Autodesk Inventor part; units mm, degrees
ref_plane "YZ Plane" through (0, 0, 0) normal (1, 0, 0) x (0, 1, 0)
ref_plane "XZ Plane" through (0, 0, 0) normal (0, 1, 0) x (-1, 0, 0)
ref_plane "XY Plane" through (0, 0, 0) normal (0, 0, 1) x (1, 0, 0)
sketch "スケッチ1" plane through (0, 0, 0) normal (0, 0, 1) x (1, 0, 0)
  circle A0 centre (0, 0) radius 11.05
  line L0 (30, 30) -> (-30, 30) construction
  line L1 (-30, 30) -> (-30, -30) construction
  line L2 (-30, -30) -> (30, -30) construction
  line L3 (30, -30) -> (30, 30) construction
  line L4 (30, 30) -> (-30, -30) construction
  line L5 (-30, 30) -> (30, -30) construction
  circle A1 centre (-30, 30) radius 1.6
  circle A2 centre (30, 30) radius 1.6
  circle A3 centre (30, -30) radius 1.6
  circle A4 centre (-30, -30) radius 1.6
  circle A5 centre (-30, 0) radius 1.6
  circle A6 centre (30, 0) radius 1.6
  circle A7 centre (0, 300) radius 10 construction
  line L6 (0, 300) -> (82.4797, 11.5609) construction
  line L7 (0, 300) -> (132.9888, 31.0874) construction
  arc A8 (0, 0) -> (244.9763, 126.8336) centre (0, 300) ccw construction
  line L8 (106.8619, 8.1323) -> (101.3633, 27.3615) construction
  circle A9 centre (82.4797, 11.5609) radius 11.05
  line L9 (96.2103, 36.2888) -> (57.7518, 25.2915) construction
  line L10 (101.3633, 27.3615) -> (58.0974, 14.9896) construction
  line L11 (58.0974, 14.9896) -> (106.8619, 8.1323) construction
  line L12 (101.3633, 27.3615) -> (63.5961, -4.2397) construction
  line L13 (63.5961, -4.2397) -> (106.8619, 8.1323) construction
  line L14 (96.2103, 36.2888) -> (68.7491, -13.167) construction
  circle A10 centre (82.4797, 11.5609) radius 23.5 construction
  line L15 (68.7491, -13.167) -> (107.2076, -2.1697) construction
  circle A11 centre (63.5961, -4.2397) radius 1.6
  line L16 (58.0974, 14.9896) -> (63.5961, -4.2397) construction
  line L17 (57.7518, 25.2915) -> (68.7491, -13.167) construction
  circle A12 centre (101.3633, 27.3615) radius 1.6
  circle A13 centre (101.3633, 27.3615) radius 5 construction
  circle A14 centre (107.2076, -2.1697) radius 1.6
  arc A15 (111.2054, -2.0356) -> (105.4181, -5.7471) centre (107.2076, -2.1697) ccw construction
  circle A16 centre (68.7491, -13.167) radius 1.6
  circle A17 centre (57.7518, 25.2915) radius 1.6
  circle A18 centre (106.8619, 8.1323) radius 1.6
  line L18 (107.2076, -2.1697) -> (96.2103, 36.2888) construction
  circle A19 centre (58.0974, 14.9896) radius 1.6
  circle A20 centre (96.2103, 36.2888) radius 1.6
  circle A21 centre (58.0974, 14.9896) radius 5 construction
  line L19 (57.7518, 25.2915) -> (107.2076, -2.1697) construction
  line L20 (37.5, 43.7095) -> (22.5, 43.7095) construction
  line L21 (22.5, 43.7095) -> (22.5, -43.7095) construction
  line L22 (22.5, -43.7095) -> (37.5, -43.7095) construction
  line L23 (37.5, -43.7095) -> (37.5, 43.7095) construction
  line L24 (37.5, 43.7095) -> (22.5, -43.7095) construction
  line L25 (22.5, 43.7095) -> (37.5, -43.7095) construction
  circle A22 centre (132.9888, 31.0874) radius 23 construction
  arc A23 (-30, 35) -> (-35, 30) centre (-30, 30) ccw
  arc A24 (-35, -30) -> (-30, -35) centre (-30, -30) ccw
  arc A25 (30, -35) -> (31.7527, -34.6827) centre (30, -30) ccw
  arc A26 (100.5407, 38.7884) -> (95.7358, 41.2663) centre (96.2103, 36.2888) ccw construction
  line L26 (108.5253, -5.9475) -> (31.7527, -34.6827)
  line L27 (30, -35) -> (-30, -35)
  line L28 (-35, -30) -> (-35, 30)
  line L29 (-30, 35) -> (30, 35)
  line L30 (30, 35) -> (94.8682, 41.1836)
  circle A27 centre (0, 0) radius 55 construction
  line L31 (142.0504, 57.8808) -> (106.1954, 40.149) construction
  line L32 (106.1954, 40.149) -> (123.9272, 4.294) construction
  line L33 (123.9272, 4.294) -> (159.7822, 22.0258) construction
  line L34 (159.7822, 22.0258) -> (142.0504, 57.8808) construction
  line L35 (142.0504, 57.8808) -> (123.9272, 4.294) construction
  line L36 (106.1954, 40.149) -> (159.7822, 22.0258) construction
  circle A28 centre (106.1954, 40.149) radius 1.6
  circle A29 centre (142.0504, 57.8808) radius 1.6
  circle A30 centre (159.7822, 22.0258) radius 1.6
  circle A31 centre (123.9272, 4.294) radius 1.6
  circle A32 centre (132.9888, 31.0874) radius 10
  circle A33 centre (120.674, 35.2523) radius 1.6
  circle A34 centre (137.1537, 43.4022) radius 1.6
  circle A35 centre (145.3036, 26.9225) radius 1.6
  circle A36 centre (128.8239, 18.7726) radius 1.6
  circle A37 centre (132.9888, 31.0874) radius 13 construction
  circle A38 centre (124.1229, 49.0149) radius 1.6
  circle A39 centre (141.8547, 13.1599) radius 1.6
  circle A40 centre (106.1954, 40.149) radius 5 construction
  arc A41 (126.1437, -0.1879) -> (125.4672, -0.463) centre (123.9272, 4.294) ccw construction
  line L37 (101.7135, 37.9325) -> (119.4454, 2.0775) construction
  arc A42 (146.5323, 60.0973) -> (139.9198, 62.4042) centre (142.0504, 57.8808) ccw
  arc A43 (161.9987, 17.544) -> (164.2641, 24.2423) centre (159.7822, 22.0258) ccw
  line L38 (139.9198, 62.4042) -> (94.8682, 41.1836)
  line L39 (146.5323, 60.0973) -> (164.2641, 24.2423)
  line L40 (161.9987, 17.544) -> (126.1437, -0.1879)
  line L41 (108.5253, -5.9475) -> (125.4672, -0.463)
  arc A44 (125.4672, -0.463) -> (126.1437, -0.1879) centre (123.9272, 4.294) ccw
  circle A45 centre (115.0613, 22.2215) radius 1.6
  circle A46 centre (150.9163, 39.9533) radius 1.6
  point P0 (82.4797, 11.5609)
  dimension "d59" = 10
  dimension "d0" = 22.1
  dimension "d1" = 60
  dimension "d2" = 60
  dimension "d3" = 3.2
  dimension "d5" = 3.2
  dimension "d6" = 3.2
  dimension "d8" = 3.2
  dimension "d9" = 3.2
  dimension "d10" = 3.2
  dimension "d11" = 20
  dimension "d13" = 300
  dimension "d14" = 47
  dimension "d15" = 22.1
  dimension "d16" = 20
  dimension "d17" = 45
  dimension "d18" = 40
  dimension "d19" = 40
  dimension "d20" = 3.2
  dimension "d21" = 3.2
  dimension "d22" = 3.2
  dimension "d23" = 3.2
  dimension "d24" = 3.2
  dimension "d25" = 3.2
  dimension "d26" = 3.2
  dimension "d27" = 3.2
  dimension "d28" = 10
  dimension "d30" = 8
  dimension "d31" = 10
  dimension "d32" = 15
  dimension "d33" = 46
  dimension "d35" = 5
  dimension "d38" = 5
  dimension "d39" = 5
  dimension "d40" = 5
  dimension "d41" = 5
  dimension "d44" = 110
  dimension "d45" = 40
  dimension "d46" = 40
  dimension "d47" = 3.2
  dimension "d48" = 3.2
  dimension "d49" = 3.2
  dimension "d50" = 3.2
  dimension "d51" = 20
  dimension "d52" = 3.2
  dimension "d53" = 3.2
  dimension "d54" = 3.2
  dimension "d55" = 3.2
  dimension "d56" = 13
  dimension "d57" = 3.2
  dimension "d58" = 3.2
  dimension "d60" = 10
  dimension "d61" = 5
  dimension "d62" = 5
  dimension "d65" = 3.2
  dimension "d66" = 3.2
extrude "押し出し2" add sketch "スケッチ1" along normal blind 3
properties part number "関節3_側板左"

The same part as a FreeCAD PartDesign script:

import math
import FreeCAD as App
import Part
import Sketcher
from FreeCAD import Vector
Q = App.Units.Quantity

doc = App.newDocument("Part")
body = doc.addObject("PartDesign::Body", "Body")

sketch1 = body.newObject("Sketcher::SketchObject", "Sketch")
sketch1.AttachmentSupport = (doc.getObject("XY_Plane"), [""])
sketch1.MapMode = "FlatFace"
sketch1.addGeometry([
    Part.LineSegment(Vector(30, 35, 0), Vector(-30, 35, 0)),
    Part.ArcOfCircle(Part.Circle(Vector(-30, 30, 0), Vector(0, 0, 1), 5), math.radians(90), math.radians(180)),
    Part.LineSegment(Vector(-35, 30, 0), Vector(-35, -30, 0)),
    Part.ArcOfCircle(Part.Circle(Vector(-30, -30, 0), Vector(0, 0, 1), 5), math.radians(180), math.radians(270)),
    Part.LineSegment(Vector(-30, -35, 0), Vector(30, -35, 0)),
    Part.ArcOfCircle(Part.Circle(Vector(30.000102, -30.001136, 0), Vector(0, 0, 1), 4.998864), math.radians(-90.001169), math.radians(-69.476027)),
    Part.LineSegment(Vector(31.7527, -34.6827, 0), Vector(108.5253, -5.9475, 0)),
    Part.LineSegment(Vector(108.5253, -5.9475, 0), Vector(125.4672, -0.463, 0)),
    Part.ArcOfCircle(Part.Circle(Vector(123.929438, 4.287862, 0), Vector(0, 0, 1), 4.993536), math.radians(-72.064237), math.radians(-63.677343)),
    Part.LineSegment(Vector(126.1437, -0.1879, 0), Vector(161.9987, 17.544, 0)),
    Part.ArcOfCircle(Part.Circle(Vector(159.7822, 22.0258, 0), Vector(0, 0, 1), 4.99994), math.radians(-63.685037), math.radians(26.314455)),
    Part.LineSegment(Vector(164.2641, 24.2423, 0), Vector(146.5323, 60.0973, 0)),
    Part.ArcOfCircle(Part.Circle(Vector(142.0504, 57.8808, 0), Vector(0, 0, 1), 5.00003), math.radians(26.314455), math.radians(115.22125)),
    Part.LineSegment(Vector(139.9198, 62.4042, 0), Vector(94.8682, 41.1836, 0)),
    Part.LineSegment(Vector(94.8682, 41.1836, 0), Vector(30, 35, 0)),
    Part.Circle(Vector(-30, -30, 0), Vector(0, 0, 1), 1.6),
    Part.Circle(Vector(30, -30, 0), Vector(0, 0, 1), 1.6),
    Part.Circle(Vector(-30, 0, 0), Vector(0, 0, 1), 1.6),
    Part.Circle(Vector(0, 0, 0), Vector(0, 0, 1), 11.05),
    Part.Circle(Vector(30, 0, 0), Vector(0, 0, 1), 1.6),
    Part.Circle(Vector(63.5961, -4.2397, 0), Vector(0, 0, 1), 1.6),
    Part.Circle(Vector(68.7491, -13.167, 0), Vector(0, 0, 1), 1.6),
    Part.Circle(Vector(107.2076, -2.1697, 0), Vector(0, 0, 1), 1.6),
    Part.Circle(Vector(82.4797, 11.5609, 0), Vector(0, 0, 1), 11.05),
    Part.Circle(Vector(106.8619, 8.1323, 0), Vector(0, 0, 1), 1.6),
    Part.Circle(Vector(123.9272, 4.294, 0), Vector(0, 0, 1), 1.6),
    Part.Circle(Vector(141.8547, 13.1599, 0), Vector(0, 0, 1), 1.6),
    Part.Circle(Vector(-30, 30, 0), Vector(0, 0, 1), 1.6),
    Part.Circle(Vector(58.0974, 14.9896, 0), Vector(0, 0, 1), 1.6),
    Part.Circle(Vector(57.7518, 25.2915, 0), Vector(0, 0, 1), 1.6),
    Part.Circle(Vector(30, 30, 0), Vector(0, 0, 1), 1.6),
    Part.Circle(Vector(101.3633, 27.3615, 0), Vector(0, 0, 1), 1.6),
    Part.Circle(Vector(96.2103, 36.2888, 0), Vector(0, 0, 1), 1.6),
    Part.Circle(Vector(128.8239, 18.7726, 0), Vector(0, 0, 1), 1.6),
    Part.Circle(Vector(115.0613, 22.2215, 0), Vector(0, 0, 1), 1.6),
    Part.Circle(Vector(159.7822, 22.0258, 0), Vector(0, 0, 1), 1.6),
    Part.Circle(Vector(132.9888, 31.0874, 0), Vector(0, 0, 1), 10),
    Part.Circle(Vector(120.674, 35.2523, 0), Vector(0, 0, 1), 1.6),
    Part.Circle(Vector(145.3036, 26.9225, 0), Vector(0, 0, 1), 1.6),
    Part.Circle(Vector(106.1954, 40.149, 0), Vector(0, 0, 1), 1.6),
    Part.Circle(Vector(137.1537, 43.4022, 0), Vector(0, 0, 1), 1.6),
    Part.Circle(Vector(124.1229, 49.0149, 0), Vector(0, 0, 1), 1.6),
    Part.Circle(Vector(150.9163, 39.9533, 0), Vector(0, 0, 1), 1.6),
    Part.Circle(Vector(142.0504, 57.8808, 0), Vector(0, 0, 1), 1.6),
], False)
sketch1.addConstraint([
    Sketcher.Constraint("Coincident", 0, 2, 1, 1),
    Sketcher.Constraint("Coincident", 1, 2, 2, 1),
    Sketcher.Constraint("Coincident", 2, 2, 3, 1),
    Sketcher.Constraint("Coincident", 3, 2, 4, 1),
    Sketcher.Constraint("Coincident", 4, 2, 5, 1),
    Sketcher.Constraint("Coincident", 5, 2, 6, 1),
    Sketcher.Constraint("Coincident", 6, 2, 7, 1),
    Sketcher.Constraint("Coincident", 7, 2, 8, 1),
    Sketcher.Constraint("Coincident", 8, 2, 9, 1),
    Sketcher.Constraint("Coincident", 9, 2, 10, 1),
    Sketcher.Constraint("Coincident", 10, 2, 11, 1),
    Sketcher.Constraint("Coincident", 11, 2, 12, 1),
    Sketcher.Constraint("Coincident", 12, 2, 13, 1),
    Sketcher.Constraint("Coincident", 13, 2, 14, 1),
    Sketcher.Constraint("Coincident", 14, 2, 0, 1),
    Sketcher.Constraint("Horizontal", 0),
    Sketcher.Constraint("Vertical", 2),
    Sketcher.Constraint("Horizontal", 4),
    Sketcher.Constraint("Coincident", 18, 3, -1, 1),
    Sketcher.Constraint("Coincident", 15, 3, 3, 3),
    Sketcher.Constraint("Coincident", 27, 3, 1, 3),
    Sketcher.Constraint("Coincident", 35, 3, 10, 3),
    Sketcher.Constraint("Coincident", 43, 3, 12, 3),
    Sketcher.Constraint("PointOnObject", 17, 3, -1),
    Sketcher.Constraint("PointOnObject", 19, 3, -1),
    Sketcher.Constraint("Diameter", 36, Q("20 mm")),
    Sketcher.Constraint("Radius", 1, Q("5 mm")),
    Sketcher.Constraint("Radius", 3, Q("5 mm")),
    Sketcher.Constraint("Radius", 10, Q("5 mm")),
    Sketcher.Constraint("Radius", 12, Q("5 mm")),
    Sketcher.Constraint("Diameter", 15, Q("3.2 mm")),
    Sketcher.Constraint("Diameter", 16, Q("3.2 mm")),
    Sketcher.Constraint("Diameter", 17, Q("3.2 mm")),
    Sketcher.Constraint("Diameter", 18, Q("22.1 mm")),
    Sketcher.Constraint("Diameter", 19, Q("3.2 mm")),
    Sketcher.Constraint("Diameter", 20, Q("3.2 mm")),
    Sketcher.Constraint("Diameter", 21, Q("3.2 mm")),
    Sketcher.Constraint("Diameter", 22, Q("3.2 mm")),
    Sketcher.Constraint("Diameter", 23, Q("22.1 mm")),
    Sketcher.Constraint("Diameter", 24, Q("3.2 mm")),
    Sketcher.Constraint("Diameter", 25, Q("3.2 mm")),
    Sketcher.Constraint("Diameter", 26, Q("3.2 mm")),
    Sketcher.Constraint("Diameter", 27, Q("3.2 mm")),
    Sketcher.Constraint("Diameter", 28, Q("3.2 mm")),
    Sketcher.Constraint("Diameter", 29, Q("3.2 mm")),
    Sketcher.Constraint("Diameter", 30, Q("3.2 mm")),
    Sketcher.Constraint("Diameter", 31, Q("3.2 mm")),
    Sketcher.Constraint("Diameter", 32, Q("3.2 mm")),
    Sketcher.Constraint("Diameter", 33, Q("3.2 mm")),
    Sketcher.Constraint("Diameter", 34, Q("3.2 mm")),
    Sketcher.Constraint("Diameter", 35, Q("3.2 mm")),
    Sketcher.Constraint("Diameter", 37, Q("3.2 mm")),
    Sketcher.Constraint("Diameter", 38, Q("3.2 mm")),
    Sketcher.Constraint("Diameter", 39, Q("3.2 mm")),
    Sketcher.Constraint("Diameter", 40, Q("3.2 mm")),
    Sketcher.Constraint("Diameter", 41, Q("3.2 mm")),
    Sketcher.Constraint("Diameter", 42, Q("3.2 mm")),
    Sketcher.Constraint("Diameter", 43, Q("3.2 mm")),
    Sketcher.Constraint("DistanceX", 0, 2, 0, 1, Q("60 mm")),
    Sketcher.Constraint("DistanceX", 4, 1, 4, 2, Q("60 mm")),
    Sketcher.Constraint("DistanceY", 2, 2, 2, 1, Q("60 mm")),
    Sketcher.Constraint("Distance", 9, Q("40 mm")),
    Sketcher.Constraint("Distance", 11, Q("40 mm")),
    Sketcher.Constraint("DistanceY", 3, 3, 1, 3, Q("60 mm")),
    Sketcher.Constraint("DistanceX", 3, 3, 5, 3, Q("60 mm")),
    Sketcher.Constraint("DistanceX", 3, 3, 16, 3, Q("60 mm")),
    Sketcher.Constraint("DistanceY", 16, 3, 1, 3, Q("60 mm")),
    Sketcher.Constraint("DistanceX", 17, 3, 16, 3, Q("60 mm")),
    Sketcher.Constraint("DistanceX", 17, 3, 19, 3, Q("60 mm")),
    Sketcher.Constraint("DistanceX", 0, 2, 30, 3, Q("60 mm")),
    Sketcher.Constraint("DistanceY", 30, 3, 0, 2, Q("5 mm")),
    Sketcher.Constraint("DistanceX", 1, 2, 0, 2, Q("5 mm")),
    Sketcher.Constraint("DistanceY", 1, 2, 0, 2, Q("5 mm")),
    Sketcher.Constraint("DistanceX", 2, 2, 3, 2, Q("5 mm")),
    Sketcher.Constraint("DistanceX", 1, 3, -1, 1, Q("30 mm")),
    Sketcher.Constraint("DistanceY", -1, 1, 1, 3, Q("30 mm")),
    Sketcher.Constraint("Radius", 5, Q("4.9989 mm")),
    Sketcher.Constraint("Radius", 8, Q("4.9935 mm")),
    Sketcher.Constraint("DistanceY", -1, 1, 26, 3, Q("13.16 mm")),
    Sketcher.Constraint("DistanceY", 20, 3, 22, 3, Q("2.07 mm")),
    Sketcher.Constraint("DistanceY", 34, 3, 31, 3, Q("5.14 mm")),
    Sketcher.Constraint("DistanceX", 37, 3, 33, 3, Q("8.15 mm")),
    Sketcher.Constraint("DistanceY", 33, 3, 38, 3, Q("8.15 mm")),
    Sketcher.Constraint("DistanceY", 37, 3, 40, 3, Q("8.15 mm")),
    Sketcher.Constraint("DistanceX", 40, 3, 38, 3, Q("8.15 mm")),
    Sketcher.Constraint("DistanceX", 25, 3, 7, 2, Q("1.54 mm")),
    Sketcher.Constraint("Distance", 6, Q("81.974 mm")),
    Sketcher.Constraint("DistanceX", -1, 1, 20, 3, Q("63.596 mm")),
    Sketcher.Constraint("DistanceX", -1, 1, 21, 3, Q("68.749 mm")),
    Sketcher.Constraint("DistanceY", 21, 3, -1, 1, Q("13.167 mm")),
    Sketcher.Constraint("DistanceY", -1, 1, 23, 3, Q("11.561 mm")),
    Sketcher.Constraint("DistanceX", -1, 1, 24, 3, Q("106.862 mm")),
    Sketcher.Constraint("DistanceY", -1, 1, 25, 3, Q("4.294 mm")),
    Sketcher.Constraint("DistanceX", -1, 1, 33, 3, Q("128.824 mm")),
    Sketcher.Constraint("DistanceY", -1, 1, 39, 3, Q("40.149 mm")),
    Sketcher.Constraint("DistanceX", -1, 1, 41, 3, Q("124.123 mm")),
    Sketcher.Constraint("DistanceY", -1, 1, 41, 3, Q("49.015 mm")),
    Sketcher.Constraint("DistanceY", 7, 2, -1, 1, Q("0.463 mm")),
    Sketcher.Constraint("DistanceY", 8, 2, -1, 1, Q("0.188 mm")),
    Sketcher.Constraint("DistanceY", -1, 1, 9, 2, Q("17.544 mm")),
    Sketcher.Constraint("DistanceX", -1, 1, 10, 2, Q("164.264 mm")),
    Sketcher.Constraint("DistanceY", 5, 3, 8, 3, Q("34.289 mm")),
    Sketcher.Constraint("DistanceY", 8, 3, 10, 3, Q("17.738 mm")),
    Sketcher.Constraint("DistanceX", 5, 3, 10, 3, Q("129.782 mm")),
    Sketcher.Constraint("DistanceY", 10, 3, 12, 3, Q("35.855 mm")),
    Sketcher.Constraint("DistanceX", 8, 3, 12, 3, Q("18.121 mm")),
    Sketcher.Constraint("DistanceX", 23, 3, 22, 3, Q("24.728 mm")),
    Sketcher.Constraint("DistanceY", 22, 3, 24, 3, Q("10.302 mm")),
    Sketcher.Constraint("DistanceX", 22, 3, 26, 3, Q("34.647 mm")),
    Sketcher.Constraint("DistanceY", 28, 3, 29, 3, Q("10.302 mm")),
    Sketcher.Constraint("DistanceX", 29, 3, 23, 3, Q("24.728 mm")),
    Sketcher.Constraint("DistanceX", 31, 3, 25, 3, Q("22.564 mm")),
    Sketcher.Constraint("DistanceX", 32, 3, 31, 3, Q("5.153 mm")),
    Sketcher.Constraint("DistanceY", 23, 3, 32, 3, Q("24.728 mm")),
    Sketcher.Constraint("DistanceY", 33, 3, 31, 3, Q("8.589 mm")),
    Sketcher.Constraint("DistanceX", 31, 3, 34, 3, Q("13.698 mm")),
    Sketcher.Constraint("DistanceX", 33, 3, 36, 3, Q("4.165 mm")),
    Sketcher.Constraint("DistanceY", 34, 3, 36, 3, Q("8.866 mm")),
    Sketcher.Constraint("DistanceX", 36, 3, 26, 3, Q("8.866 mm")),
    Sketcher.Constraint("DistanceY", 36, 3, 37, 3, Q("4.165 mm")),
    Sketcher.Constraint("DistanceX", 26, 3, 38, 3, Q("3.449 mm")),
    Sketcher.Constraint("DistanceX", 32, 3, 39, 3, Q("9.985 mm")),
    Sketcher.Constraint("DistanceY", 42, 3, 40, 3, Q("3.449 mm")),
    Sketcher.Constraint("DistanceX", 42, 3, 10, 3, Q("8.866 mm")),
    Sketcher.Constraint("DistanceX", 6, 2, 25, 3, Q("15.402 mm")),
    Sketcher.Constraint("DistanceY", 6, 2, 34, 3, Q("28.169 mm")),
    Sketcher.Constraint("DistanceY", 10, 2, 42, 3, Q("15.711 mm")),
    Sketcher.Constraint("DistanceX", 40, 3, 12, 2, Q("2.766 mm")),
    Sketcher.Constraint("DistanceX", 13, 2, 32, 3, Q("1.342 mm")),
    Sketcher.Constraint("DistanceY", 31, 3, 13, 2, Q("13.822 mm")),
    Sketcher.Constraint("DistanceY", 20, 3, -1, 1, Q("4.2397 mm")),
    Sketcher.Constraint("DistanceX", -1, 1, 28, 3, Q("58.0974 mm")),
    Sketcher.Constraint("DistanceY", -1, 1, 28, 3, Q("14.9896 mm")),
])
pad1 = body.newObject("PartDesign::Pad", "Pad")
pad1.Profile = sketch1
pad1.Length = 3

doc.recompute()
